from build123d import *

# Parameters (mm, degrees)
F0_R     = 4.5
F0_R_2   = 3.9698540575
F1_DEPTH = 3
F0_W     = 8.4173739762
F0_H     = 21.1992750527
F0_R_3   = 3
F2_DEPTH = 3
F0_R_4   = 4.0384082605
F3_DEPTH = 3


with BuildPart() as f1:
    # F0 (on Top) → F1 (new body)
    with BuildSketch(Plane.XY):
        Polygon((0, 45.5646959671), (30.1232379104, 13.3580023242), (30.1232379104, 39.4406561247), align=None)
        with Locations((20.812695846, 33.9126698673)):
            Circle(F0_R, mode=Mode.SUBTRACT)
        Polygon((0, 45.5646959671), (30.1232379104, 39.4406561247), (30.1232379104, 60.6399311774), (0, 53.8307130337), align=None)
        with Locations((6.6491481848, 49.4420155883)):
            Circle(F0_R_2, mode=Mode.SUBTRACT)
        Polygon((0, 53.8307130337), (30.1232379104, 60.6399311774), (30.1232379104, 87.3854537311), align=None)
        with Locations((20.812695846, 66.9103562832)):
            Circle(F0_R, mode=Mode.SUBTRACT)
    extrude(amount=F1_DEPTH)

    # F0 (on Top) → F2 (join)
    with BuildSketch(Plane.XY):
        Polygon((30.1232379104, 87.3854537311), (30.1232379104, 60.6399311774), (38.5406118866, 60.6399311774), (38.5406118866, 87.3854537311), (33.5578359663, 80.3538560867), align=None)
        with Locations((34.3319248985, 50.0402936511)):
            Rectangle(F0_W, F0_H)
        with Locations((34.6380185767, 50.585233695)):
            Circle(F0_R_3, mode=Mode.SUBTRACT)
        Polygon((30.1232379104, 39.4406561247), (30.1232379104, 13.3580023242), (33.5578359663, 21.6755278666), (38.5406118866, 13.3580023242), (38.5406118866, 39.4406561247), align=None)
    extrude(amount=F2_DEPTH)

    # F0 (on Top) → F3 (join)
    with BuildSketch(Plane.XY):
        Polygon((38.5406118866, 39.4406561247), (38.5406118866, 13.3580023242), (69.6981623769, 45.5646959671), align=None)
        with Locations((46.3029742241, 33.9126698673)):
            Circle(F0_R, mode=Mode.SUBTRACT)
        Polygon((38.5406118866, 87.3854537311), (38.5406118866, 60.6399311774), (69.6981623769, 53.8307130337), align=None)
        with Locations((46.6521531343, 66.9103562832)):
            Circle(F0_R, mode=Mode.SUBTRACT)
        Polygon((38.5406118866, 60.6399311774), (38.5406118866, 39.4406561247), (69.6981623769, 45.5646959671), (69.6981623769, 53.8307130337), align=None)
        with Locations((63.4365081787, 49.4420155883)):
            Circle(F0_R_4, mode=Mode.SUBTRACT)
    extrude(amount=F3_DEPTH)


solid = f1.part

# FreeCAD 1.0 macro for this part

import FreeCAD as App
import Part
import Sketcher

V = App.Vector

doc = App.newDocument("Part")
params = doc.addObject("Spreadsheet::Sheet", "Params")
for row, (alias, value) in enumerate([
    ("sketch1_diameter", "9 mm"),
    ("pad1_length", "3 mm"),
    ("sketch2_diameter", "6 mm"),
    ("pad2_length", "3 mm"),
    ("sketch3_diameter", "9 mm"),
    ("pad3_length", "3 mm"),
], start=1):
    params.set(f"A{row}", alias)
    params.set(f"B{row}", "=" + value)
    params.setAlias(f"B{row}", alias)

body = doc.addObject("PartDesign::Body", "Body")

sketch1 = body.newObject("Sketcher::SketchObject", "Sketch")
sketch1.AttachmentSupport = (doc.getObject("XY_Plane"), [""])
sketch1.MapMode = "FlatFace"
sketch1.addGeometry(Part.LineSegment(V(0, 45.6, 0), V(30.1, 13.4, 0)), False)
sketch1.addGeometry(Part.LineSegment(V(30.1, 13.4, 0), V(30.1, 87.4, 0)), False)
sketch1.addGeometry(Part.LineSegment(V(30.1, 87.4, 0), V(0, 53.8, 0)), False)
sketch1.addGeometry(Part.LineSegment(V(0, 53.8, 0), V(0, 45.6, 0)), False)
sketch1.addGeometry(Part.Circle(V(6.6, 49.4, 0), V(0, 0, 1), 4), False)
sketch1.addGeometry(Part.Circle(V(20.8, 33.9, 0), V(0, 0, 1), 4.5), False)
sketch1.addGeometry(Part.Circle(V(20.8, 66.9, 0), V(0, 0, 1), 4.5), False)
sketch1.addConstraint(Sketcher.Constraint("Coincident", 0, 2, 1, 1))
sketch1.addConstraint(Sketcher.Constraint("Coincident", 1, 2, 2, 1))
sketch1.addConstraint(Sketcher.Constraint("Coincident", 2, 2, 3, 1))
sketch1.addConstraint(Sketcher.Constraint("Coincident", 3, 2, 0, 1))
sketch1.addConstraint(Sketcher.Constraint("Vertical", 1))
sketch1.addConstraint(Sketcher.Constraint("Vertical", 3))
sketch1.addConstraint(Sketcher.Constraint("Equal", 5, 6))
sketch1.addConstraint(Sketcher.Constraint("PointOnObject", 2, 2, -2))
sketch1.addConstraint(Sketcher.Constraint("Vertical", 5, 3, 6, 3))
sketch1.addConstraint(Sketcher.Constraint("Diameter", 5, 9.0))
sketch1.addConstraint(Sketcher.Constraint("Diameter", 4, 7.939708))
sketch1.addConstraint(Sketcher.Constraint("DistanceY", 1, 1, 1, 2, 74.027451))
sketch1.addConstraint(Sketcher.Constraint("Distance", 2, 45.092462))
sketch1.addConstraint(Sketcher.Constraint("DistanceY", 3, 2, 3, 1, 8.266017))
sketch1.addConstraint(Sketcher.Constraint("DistanceX", -1, 1, 4, 3, 6.649148))
sketch1.addConstraint(Sketcher.Constraint("DistanceY", -1, 1, 5, 3, 33.91267))
sketch1.addConstraint(Sketcher.Constraint("DistanceY", 4, 3, 6, 3, 17.468341))
sketch1.addConstraint(Sketcher.Constraint("DistanceX", 4, 3, 0, 2, 23.47409))
sketch1.addConstraint(Sketcher.Constraint("DistanceY", 4, 3, 1, 2, 37.943438))
sketch1.addConstraint(Sketcher.Constraint("DistanceY", -1, 1, 4, 3, 49.442016))
sketch1.addConstraint(Sketcher.Constraint("DistanceX", -1, 1, 5, 3, 20.812696))
sketch1.setExpression("Constraints[9]", "Params.sketch1_diameter")
pad1 = body.newObject("PartDesign::Pad", "Pad")
pad1.Profile = sketch1
pad1.setExpression("Length", "Params.pad1_length")

sketch2 = body.newObject("Sketcher::SketchObject", "Sketch001")
sketch2.AttachmentSupport = (doc.getObject("XY_Plane"), [""])
sketch2.MapMode = "FlatFace"
sketch2.addGeometry(Part.LineSegment(V(30.1, 87.4, 0), V(30.1, 13.4, 0)), False)
sketch2.addGeometry(Part.LineSegment(V(30.1, 13.4, 0), V(33.6, 21.7, 0)), False)
sketch2.addGeometry(Part.LineSegment(V(33.6, 21.7, 0), V(38.5, 13.4, 0)), False)
sketch2.addGeometry(Part.LineSegment(V(38.5, 13.4, 0), V(38.5, 87.4, 0)), False)
sketch2.addGeometry(Part.LineSegment(V(38.5, 87.4, 0), V(33.6, 80.4, 0)), False)
sketch2.addGeometry(Part.LineSegment(V(33.6, 80.4, 0), V(30.1, 87.4, 0)), False)
sketch2.addGeometry(Part.Circle(V(34.6, 50.6, 0), V(0, 0, 1), 3), False)
sketch2.addConstraint(Sketcher.Constraint("Coincident", 0, 2, 1, 1))
sketch2.addConstraint(Sketcher.Constraint("Coincident", 1, 2, 2, 1))
sketch2.addConstraint(Sketcher.Constraint("Coincident", 2, 2, 3, 1))
sketch2.addConstraint(Sketcher.Constraint("Coincident", 3, 2, 4, 1))
sketch2.addConstraint(Sketcher.Constraint("Coincident", 4, 2, 5, 1))
sketch2.addConstraint(Sketcher.Constraint("Coincident", 5, 2, 0, 1))
sketch2.addConstraint(Sketcher.Constraint("Vertical", 0))
sketch2.addConstraint(Sketcher.Constraint("Vertical", 3))
sketch2.addConstraint(Sketcher.Constraint("Horizontal", 0, 2, 2, 2))
sketch2.addConstraint(Sketcher.Constraint("Horizontal", 3, 2, 5, 2))
sketch2.addConstraint(Sketcher.Constraint("Vertical", 1, 2, 4, 2))
sketch2.addConstraint(Sketcher.Constraint("Diameter", 6, 6.0))
sketch2.addConstraint(Sketcher.Constraint("DistanceY", 0, 2, 0, 1, 74.027451))
sketch2.addConstraint(Sketcher.Constraint("DistanceX", 0, 2, 1, 2, 3.434598))
sketch2.addConstraint(Sketcher.Constraint("Distance", 1, 8.998761))
sketch2.addConstraint(Sketcher.Constraint("Distance", 2, 9.695839))
sketch2.addConstraint(Sketcher.Constraint("Distance", 5, 7.825588))
sketch2.addConstraint(Sketcher.Constraint("DistanceX", -1, 1, 6, 3, 34.638019))
sketch2.addConstraint(Sketcher.Constraint("DistanceX", -1, 1, 2, 2, 38.540612))
sketch2.addConstraint(Sketcher.Constraint("DistanceY", 0, 2, 6, 3, 37.227231))
sketch2.addConstraint(Sketcher.Constraint("DistanceY", -1, 1, 6, 3, 50.585234))
sketch2.setExpression("Constraints[11]", "Params.sketch2_diameter")
pad2 = body.newObject("PartDesign::Pad", "Pad001")
pad2.Profile = sketch2
pad2.setExpression("Length", "Params.pad2_length")

sketch3 = body.newObject("Sketcher::SketchObject", "Sketch002")
sketch3.AttachmentSupport = (doc.getObject("XY_Plane"), [""])
sketch3.MapMode = "FlatFace"
sketch3.addGeometry(Part.LineSegment(V(38.5, 13.4, 0), V(69.7, 45.6, 0)), False)
sketch3.addGeometry(Part.LineSegment(V(69.7, 45.6, 0), V(69.7, 53.8, 0)), False)
sketch3.addGeometry(Part.LineSegment(V(69.7, 53.8, 0), V(38.5, 87.4, 0)), False)
sketch3.addGeometry(Part.LineSegment(V(38.5, 87.4, 0), V(38.5, 13.4, 0)), False)
sketch3.addGeometry(Part.Circle(V(46.3, 33.9, 0), V(0, 0, 1), 4.5), False)
sketch3.addGeometry(Part.Circle(V(63.4, 49.4, 0), V(0, 0, 1), 4), False)
sketch3.addGeometry(Part.Circle(V(46.7, 66.9, 0), V(0, 0, 1), 4.5), False)
sketch3.addConstraint(Sketcher.Constraint("Coincident", 0, 2, 1, 1))
sketch3.addConstraint(Sketcher.Constraint("Coincident", 1, 2, 2, 1))
sketch3.addConstraint(Sketcher.Constraint("Coincident", 2, 2, 3, 1))
sketch3.addConstraint(Sketcher.Constraint("Coincident", 3, 2, 0, 1))
sketch3.addConstraint(Sketcher.Constraint("Vertical", 1))
sketch3.addConstraint(Sketcher.Constraint("Vertical", 3))
sketch3.addConstraint(Sketcher.Constraint("Equal", 4, 6))
sketch3.addConstraint(Sketcher.Constraint("Diameter", 4, 9.0))
sketch3.addConstraint(Sketcher.Constraint("Diameter", 5, 8.076817))
sketch3.addConstraint(Sketcher.Constraint("DistanceY", 3, 2, 3, 1, 74.027451))
sketch3.addConstraint(Sketcher.Constraint("DistanceY", 1, 1, 1, 2, 8.266017))
sketch3.addConstraint(Sketcher.Constraint("DistanceY", -1, 1, 4, 3, 33.91267))
sketch3.addConstraint(Sketcher.Constraint("DistanceX", -1, 1, 5, 3, 63.436508))
sketch3.addConstraint(Sketcher.Constraint("DistanceX", -1, 1, 2, 2, 38.540612))
sketch3.addConstraint(Sketcher.Constraint("DistanceY", 5, 3, 6, 3, 17.468341))
sketch3.addConstraint(Sketcher.Constraint("DistanceX", 4, 3, 6, 3, 0.349179))
sketch3.addConstraint(Sketcher.Constraint("DistanceY", 0, 2, 5, 3, 3.87732))
sketch3.addConstraint(Sketcher.Constraint("DistanceX", 4, 3, 0, 2, 23.395188))
sketch3.addConstraint(Sketcher.Constraint("DistanceX", 2, 2, 6, 3, 8.111541))
sketch3.addConstraint(Sketcher.Constraint("DistanceY", 5, 3, 2, 2, 37.943438))
sketch3.addConstraint(Sketcher.Constraint("DistanceY", -1, 1, 5, 3, 49.442016))
sketch3.setExpression("Constraints[7]", "Params.sketch3_diameter")
pad3 = body.newObject("PartDesign::Pad", "Pad002")
pad3.Profile = sketch3
pad3.setExpression("Length", "Params.pad3_length")

doc.recompute()
